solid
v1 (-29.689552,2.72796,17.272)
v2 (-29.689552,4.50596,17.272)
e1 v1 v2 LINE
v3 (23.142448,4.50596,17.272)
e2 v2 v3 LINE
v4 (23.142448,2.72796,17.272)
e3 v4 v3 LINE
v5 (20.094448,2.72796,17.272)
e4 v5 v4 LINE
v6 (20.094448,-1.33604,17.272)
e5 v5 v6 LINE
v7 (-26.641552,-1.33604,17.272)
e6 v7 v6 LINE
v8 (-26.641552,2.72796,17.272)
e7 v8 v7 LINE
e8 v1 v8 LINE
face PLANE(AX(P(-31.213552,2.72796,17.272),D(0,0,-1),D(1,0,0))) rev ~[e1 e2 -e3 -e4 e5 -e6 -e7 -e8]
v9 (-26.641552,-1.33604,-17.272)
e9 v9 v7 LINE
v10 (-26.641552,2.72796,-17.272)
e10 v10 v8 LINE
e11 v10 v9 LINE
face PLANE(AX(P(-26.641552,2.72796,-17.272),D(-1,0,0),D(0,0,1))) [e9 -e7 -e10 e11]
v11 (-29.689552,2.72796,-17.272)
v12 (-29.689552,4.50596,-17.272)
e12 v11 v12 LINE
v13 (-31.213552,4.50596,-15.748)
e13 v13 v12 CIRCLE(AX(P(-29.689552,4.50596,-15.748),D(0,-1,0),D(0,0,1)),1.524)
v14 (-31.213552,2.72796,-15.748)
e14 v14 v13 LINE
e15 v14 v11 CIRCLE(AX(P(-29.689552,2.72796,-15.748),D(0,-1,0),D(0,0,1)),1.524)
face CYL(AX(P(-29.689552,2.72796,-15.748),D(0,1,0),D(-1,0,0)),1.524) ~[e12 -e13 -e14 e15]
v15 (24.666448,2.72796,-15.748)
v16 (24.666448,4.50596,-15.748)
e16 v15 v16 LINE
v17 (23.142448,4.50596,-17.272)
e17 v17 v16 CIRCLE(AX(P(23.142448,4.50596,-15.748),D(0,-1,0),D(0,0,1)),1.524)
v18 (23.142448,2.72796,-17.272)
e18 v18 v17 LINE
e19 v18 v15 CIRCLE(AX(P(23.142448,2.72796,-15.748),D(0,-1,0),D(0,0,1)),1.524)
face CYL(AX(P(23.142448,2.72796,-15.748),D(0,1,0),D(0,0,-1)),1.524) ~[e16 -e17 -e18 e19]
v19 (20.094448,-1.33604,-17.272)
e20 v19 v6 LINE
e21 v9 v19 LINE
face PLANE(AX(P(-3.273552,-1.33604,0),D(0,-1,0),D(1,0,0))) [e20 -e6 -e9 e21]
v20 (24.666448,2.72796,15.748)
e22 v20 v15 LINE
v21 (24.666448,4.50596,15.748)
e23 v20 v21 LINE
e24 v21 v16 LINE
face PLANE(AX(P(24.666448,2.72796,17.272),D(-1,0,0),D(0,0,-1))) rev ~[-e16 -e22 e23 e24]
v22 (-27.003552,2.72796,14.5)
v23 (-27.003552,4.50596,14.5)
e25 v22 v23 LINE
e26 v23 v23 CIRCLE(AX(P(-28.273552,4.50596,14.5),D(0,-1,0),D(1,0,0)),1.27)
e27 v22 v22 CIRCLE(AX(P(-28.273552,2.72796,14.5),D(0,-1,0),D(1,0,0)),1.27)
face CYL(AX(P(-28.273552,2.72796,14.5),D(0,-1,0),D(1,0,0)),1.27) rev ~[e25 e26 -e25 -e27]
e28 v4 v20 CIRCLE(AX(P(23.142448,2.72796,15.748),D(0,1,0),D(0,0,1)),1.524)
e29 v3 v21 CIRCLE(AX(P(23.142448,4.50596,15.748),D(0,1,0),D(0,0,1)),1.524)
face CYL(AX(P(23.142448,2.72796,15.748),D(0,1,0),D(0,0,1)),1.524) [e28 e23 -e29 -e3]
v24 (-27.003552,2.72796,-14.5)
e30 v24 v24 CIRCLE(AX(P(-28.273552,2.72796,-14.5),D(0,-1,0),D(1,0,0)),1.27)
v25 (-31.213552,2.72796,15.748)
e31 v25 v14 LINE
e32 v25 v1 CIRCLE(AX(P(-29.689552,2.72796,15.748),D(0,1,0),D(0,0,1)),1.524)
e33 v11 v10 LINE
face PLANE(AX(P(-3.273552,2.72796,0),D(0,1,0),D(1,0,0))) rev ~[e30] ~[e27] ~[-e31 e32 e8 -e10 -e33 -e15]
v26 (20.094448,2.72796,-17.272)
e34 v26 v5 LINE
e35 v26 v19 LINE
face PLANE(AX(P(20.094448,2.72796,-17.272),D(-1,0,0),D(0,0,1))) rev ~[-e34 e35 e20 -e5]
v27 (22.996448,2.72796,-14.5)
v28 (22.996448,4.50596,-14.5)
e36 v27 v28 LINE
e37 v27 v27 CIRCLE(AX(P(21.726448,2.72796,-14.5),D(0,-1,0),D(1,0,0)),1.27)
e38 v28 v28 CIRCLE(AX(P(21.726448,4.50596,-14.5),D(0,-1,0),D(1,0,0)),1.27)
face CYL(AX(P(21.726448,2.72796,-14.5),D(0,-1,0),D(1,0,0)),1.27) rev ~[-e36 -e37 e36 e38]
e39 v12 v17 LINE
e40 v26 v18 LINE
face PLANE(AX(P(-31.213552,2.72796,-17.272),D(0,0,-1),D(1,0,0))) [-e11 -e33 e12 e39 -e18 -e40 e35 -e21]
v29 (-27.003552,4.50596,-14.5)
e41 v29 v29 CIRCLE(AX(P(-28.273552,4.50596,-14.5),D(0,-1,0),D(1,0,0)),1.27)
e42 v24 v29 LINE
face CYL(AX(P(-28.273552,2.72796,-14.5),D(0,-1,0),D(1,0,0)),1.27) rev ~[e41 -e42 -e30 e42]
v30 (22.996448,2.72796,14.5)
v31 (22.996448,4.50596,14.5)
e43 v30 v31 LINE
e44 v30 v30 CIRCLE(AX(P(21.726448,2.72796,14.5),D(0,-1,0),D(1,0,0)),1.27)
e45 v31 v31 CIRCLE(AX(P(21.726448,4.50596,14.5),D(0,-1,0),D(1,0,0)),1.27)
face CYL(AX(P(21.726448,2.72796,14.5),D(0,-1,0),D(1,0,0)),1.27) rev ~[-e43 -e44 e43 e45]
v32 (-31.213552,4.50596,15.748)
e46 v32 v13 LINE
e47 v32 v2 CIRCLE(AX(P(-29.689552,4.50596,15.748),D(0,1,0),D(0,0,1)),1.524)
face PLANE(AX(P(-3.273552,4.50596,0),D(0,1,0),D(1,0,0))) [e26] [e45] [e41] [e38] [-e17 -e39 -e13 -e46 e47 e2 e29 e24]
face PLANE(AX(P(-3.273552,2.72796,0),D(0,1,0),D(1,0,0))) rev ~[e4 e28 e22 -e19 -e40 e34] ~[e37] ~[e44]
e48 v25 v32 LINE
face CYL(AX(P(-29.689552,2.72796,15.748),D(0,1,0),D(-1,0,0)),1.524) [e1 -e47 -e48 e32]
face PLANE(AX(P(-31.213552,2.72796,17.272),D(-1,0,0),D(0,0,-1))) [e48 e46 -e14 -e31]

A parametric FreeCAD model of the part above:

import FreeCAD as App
import Part
import Sketcher
from FreeCAD import Vector
Q = App.Units.Quantity


def edges_at(feature, points):
    """Names of the edges that pass closest to the given points."""
    edges = feature.Shape.Edges
    near = lambda p: min(range(len(edges)), key=lambda i: edges[i].distToShape(Part.Vertex(*p))[0])
    return sorted({f"Edge{near(p) + 1}" for p in points})


def add_polygon(sketch, points):
    """Adds a closed chain of lines whose ends are joined by coincident constraints."""
    first, n = sketch.GeometryCount, len(points)
    for a, b in zip(points, points[1:] + points[:1]):
        sketch.addGeometry(Part.LineSegment(App.Vector(*a, 0), App.Vector(*b, 0)), False)
    for i in range(n):
        sketch.addConstraint(Sketcher.Constraint("Coincident", first + i, 2, first + (i + 1) % n, 1))

doc = App.newDocument("Part")
params = doc.addObject("Spreadsheet::Sheet", "Params")
for row, (alias, value) in enumerate([
    ("sketch1_width", "1.84 in"),
    ("sketch1_height", "1.36 in"),
    ("pad1_length", "0.16 in"),
    ("sketch2_width", "2.2 in"),
    ("sketch2_height", "1.36 in"),
    ("pad2_length", "0.07 in"),
    ("sketch3_diameter", "0.1 in"),
    ("fillet_radius", "0.06 in"),
], start=1):
    params.set(f"A{row}", alias)
    params.set(f"B{row}", "=" + value)
    params.setAlias(f"B{row}", alias)

body = doc.addObject("PartDesign::Body", "Body")

sketch1 = body.newObject("Sketcher::SketchObject", "Sketch")
sketch1.AttachmentSupport = (doc.getObject("XZ_Plane"), [""])
sketch1.MapMode = "FlatFace"
add_polygon(sketch1, [(-23, 17), (-23, -17), (23, -17), (23, 17)])
sketch1.addConstraint([
    Sketcher.Constraint("Vertical", 0),
    Sketcher.Constraint("Horizontal", 1),
    Sketcher.Constraint("Vertical", 2),
    Sketcher.Constraint("Horizontal", 3),
    Sketcher.Constraint("Symmetric", 0, 2, 2, 2, -1, 1),
    Sketcher.Constraint("DistanceX", 1, 1, 1, 2, Q("1.84 in")),
    Sketcher.Constraint("DistanceY", 0, 2, 0, 1, Q("1.36 in")),
])
sketch1.setExpression("Constraints[9]", "Params.sketch1_width")
sketch1.setExpression("Constraints[10]", "Params.sketch1_height")
pad1 = body.newObject("PartDesign::Pad", "Pad")
pad1.Profile = sketch1
pad1.setExpression("Length", "Params.pad1_length")

sketch2 = body.newObject("Sketcher::SketchObject", "Sketch001")
sketch2.AttachmentSupport = (doc.getObject("XZ_Plane"), [""])
sketch2.MapMode = "FlatFace"
add_polygon(sketch2, [(-28, -17), (-28, 17), (28, 17), (28, -17)])
sketch2.addConstraint([
    Sketcher.Constraint("Vertical", 0),
    Sketcher.Constraint("Horizontal", 1),
    Sketcher.Constraint("Vertical", 2),
    Sketcher.Constraint("Horizontal", 3),
    Sketcher.Constraint("Symmetric", 0, 2, 2, 2, -1, 1),
    Sketcher.Constraint("DistanceX", 1, 1, 1, 2, Q("2.2 in")),
    Sketcher.Constraint("DistanceY", 0, 1, 0, 2, Q("1.36 in")),
])
sketch2.setExpression("Constraints[9]", "Params.sketch2_width")
sketch2.setExpression("Constraints[10]", "Params.sketch2_height")
pad2 = body.newObject("PartDesign::Pad", "Pad001")
pad2.Profile = sketch2
pad2.setExpression("Length", "Params.pad2_length")
pad2.Reversed = True

sketch3 = body.newObject("Sketcher::SketchObject", "Sketch002")
sketch3.AttachmentSupport = (doc.getObject("XZ_Plane"), [""])
sketch3.MapMode = "FlatFace"
sketch3.addGeometry([
    Part.Circle(Vector(25, 14.5, 0), Vector(0, 0, 1), 1.3),
    Part.Circle(Vector(-25, 14.5, 0), Vector(0, 0, 1), 1.3),
    Part.Circle(Vector(-25, -14.5, 0), Vector(0, 0, 1), 1.3),
    Part.Circle(Vector(25, -14.5, 0), Vector(0, 0, 1), 1.3),
], False)
sketch3.addConstraint([
    Sketcher.Constraint("Equal", 0, 1),
    Sketcher.Constraint("Equal", 1, 2),
    Sketcher.Constraint("Equal", 2, 3),
    Sketcher.Constraint("Symmetric", 0, 3, 2, 3, -1, 1),
    Sketcher.Constraint("Symmetric", 1, 3, 3, 3, -1, 1),
    Sketcher.Constraint("Symmetric", 0, 3, 1, 3, -2),
    Sketcher.Constraint("Diameter", 0, Q("0.1 in")),
    Sketcher.Constraint("DistanceX", -1, 1, 0, 3, Q("25 mm")),
    Sketcher.Constraint("DistanceY", -1, 1, 0, 3, Q("14.5 mm")),
])
sketch3.setExpression("Constraints[6]", "Params.sketch3_diameter")
pocket1 = body.newObject("PartDesign::Pocket", "Pocket")
pocket1.Profile = sketch3
pocket1.Type = "ThroughAll"
doc.recompute()

fillet = body.newObject("PartDesign::Fillet", "Fillet")
fillet.Base = (pocket1, edges_at(pocket1, [
    (27.94, 0.889, -17.272),
    (27.94, 0.889, 17.272),
    (-27.94, 0.889, 17.272),
    (-27.94, 0.889, -17.272),
]))
fillet.setExpression("Radius", "Params.fillet_radius")
body2 = doc.addObject("PartDesign::Body", "Body001")
doc.recompute()

body.Placement = App.Placement(Vector(-3.273552, 2.72796, 0), App.Rotation(Vector(0, 0, 1), 0))
boolean = body2.newObject("PartDesign::Boolean", "Boolean")
boolean.Type = "Fuse"
boolean.addObjects([body])

doc.recompute()
